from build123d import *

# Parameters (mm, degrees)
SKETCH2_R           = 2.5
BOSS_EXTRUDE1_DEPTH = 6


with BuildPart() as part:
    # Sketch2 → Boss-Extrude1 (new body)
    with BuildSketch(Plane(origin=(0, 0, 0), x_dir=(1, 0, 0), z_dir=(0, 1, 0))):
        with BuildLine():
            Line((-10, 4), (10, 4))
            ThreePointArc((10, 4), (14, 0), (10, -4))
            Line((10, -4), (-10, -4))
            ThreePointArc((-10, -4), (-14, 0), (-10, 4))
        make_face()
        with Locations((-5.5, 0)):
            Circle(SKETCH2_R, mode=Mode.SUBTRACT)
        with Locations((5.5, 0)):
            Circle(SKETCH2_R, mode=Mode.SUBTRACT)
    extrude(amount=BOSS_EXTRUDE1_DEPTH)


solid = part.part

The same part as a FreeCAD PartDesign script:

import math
import FreeCAD as App
import Part
import Sketcher
Q = App.Units.Quantity

doc = App.newDocument("Part")
body = doc.addObject("PartDesign::Body", "Body")

# Sketch on XZ plane
sketch1 = body.newObject("Sketcher::SketchObject", "Sketch")
sketch1.AttachmentSupport = (doc.getObject("XZ_Plane"), [""])
sketch1.MapMode = "FlatFace"
sketch1.addGeometry([
    Part.LineSegment(App.Vector(10, -4, 0), App.Vector(-10, -4, 0)),  # 0
    Part.ArcOfCircle(Part.Circle(App.Vector(-10, 0, 0), App.Vector(0, 0, 1), 4), math.radians(90), math.radians(270)),  # 1
    Part.LineSegment(App.Vector(-10, 4, 0), App.Vector(10, 4, 0)),  # 2
    Part.ArcOfCircle(Part.Circle(App.Vector(10, 0, 0), App.Vector(0, 0, 1), 4), math.radians(-90), math.radians(90)),  # 3
    Part.Circle(App.Vector(5.5, 0, 0), App.Vector(0, 0, 1), 2.5),  # 4
    Part.Circle(App.Vector(-5.5, 0, 0), App.Vector(0, 0, 1), 2.5),  # 5
], False)
sketch1.addConstraint([
    Sketcher.Constraint("Tangent", 0, 2, 1, 2),
    Sketcher.Constraint("Tangent", 1, 1, 2, 1),
    Sketcher.Constraint("Tangent", 2, 2, 3, 2),
    Sketcher.Constraint("Tangent", 3, 1, 0, 1),
    Sketcher.Constraint("Horizontal", 0),
    Sketcher.Constraint("Horizontal", 2),
    Sketcher.Constraint("Equal", 4, 5),
    Sketcher.Constraint("Symmetric", 1, 3, 3, 3, -1, 1),
    Sketcher.Constraint("Symmetric", 4, 3, 5, 3, -1, 1),
    Sketcher.Constraint("PointOnObject", 4, 3, -1),
    Sketcher.Constraint("Diameter", 4, Q("5 mm")),
    Sketcher.Constraint("Radius", 1, Q("4 mm")),
    Sketcher.Constraint("DistanceX", 0, 2, 0, 1, Q("20 mm")),
    Sketcher.Constraint("DistanceX", 5, 3, 4, 3, Q("11 mm")),
])
pad1 = body.newObject("PartDesign::Pad", "Pad")
pad1.Profile = sketch1
pad1.Length = 6
pad1.Reversed = True

doc.recompute()
